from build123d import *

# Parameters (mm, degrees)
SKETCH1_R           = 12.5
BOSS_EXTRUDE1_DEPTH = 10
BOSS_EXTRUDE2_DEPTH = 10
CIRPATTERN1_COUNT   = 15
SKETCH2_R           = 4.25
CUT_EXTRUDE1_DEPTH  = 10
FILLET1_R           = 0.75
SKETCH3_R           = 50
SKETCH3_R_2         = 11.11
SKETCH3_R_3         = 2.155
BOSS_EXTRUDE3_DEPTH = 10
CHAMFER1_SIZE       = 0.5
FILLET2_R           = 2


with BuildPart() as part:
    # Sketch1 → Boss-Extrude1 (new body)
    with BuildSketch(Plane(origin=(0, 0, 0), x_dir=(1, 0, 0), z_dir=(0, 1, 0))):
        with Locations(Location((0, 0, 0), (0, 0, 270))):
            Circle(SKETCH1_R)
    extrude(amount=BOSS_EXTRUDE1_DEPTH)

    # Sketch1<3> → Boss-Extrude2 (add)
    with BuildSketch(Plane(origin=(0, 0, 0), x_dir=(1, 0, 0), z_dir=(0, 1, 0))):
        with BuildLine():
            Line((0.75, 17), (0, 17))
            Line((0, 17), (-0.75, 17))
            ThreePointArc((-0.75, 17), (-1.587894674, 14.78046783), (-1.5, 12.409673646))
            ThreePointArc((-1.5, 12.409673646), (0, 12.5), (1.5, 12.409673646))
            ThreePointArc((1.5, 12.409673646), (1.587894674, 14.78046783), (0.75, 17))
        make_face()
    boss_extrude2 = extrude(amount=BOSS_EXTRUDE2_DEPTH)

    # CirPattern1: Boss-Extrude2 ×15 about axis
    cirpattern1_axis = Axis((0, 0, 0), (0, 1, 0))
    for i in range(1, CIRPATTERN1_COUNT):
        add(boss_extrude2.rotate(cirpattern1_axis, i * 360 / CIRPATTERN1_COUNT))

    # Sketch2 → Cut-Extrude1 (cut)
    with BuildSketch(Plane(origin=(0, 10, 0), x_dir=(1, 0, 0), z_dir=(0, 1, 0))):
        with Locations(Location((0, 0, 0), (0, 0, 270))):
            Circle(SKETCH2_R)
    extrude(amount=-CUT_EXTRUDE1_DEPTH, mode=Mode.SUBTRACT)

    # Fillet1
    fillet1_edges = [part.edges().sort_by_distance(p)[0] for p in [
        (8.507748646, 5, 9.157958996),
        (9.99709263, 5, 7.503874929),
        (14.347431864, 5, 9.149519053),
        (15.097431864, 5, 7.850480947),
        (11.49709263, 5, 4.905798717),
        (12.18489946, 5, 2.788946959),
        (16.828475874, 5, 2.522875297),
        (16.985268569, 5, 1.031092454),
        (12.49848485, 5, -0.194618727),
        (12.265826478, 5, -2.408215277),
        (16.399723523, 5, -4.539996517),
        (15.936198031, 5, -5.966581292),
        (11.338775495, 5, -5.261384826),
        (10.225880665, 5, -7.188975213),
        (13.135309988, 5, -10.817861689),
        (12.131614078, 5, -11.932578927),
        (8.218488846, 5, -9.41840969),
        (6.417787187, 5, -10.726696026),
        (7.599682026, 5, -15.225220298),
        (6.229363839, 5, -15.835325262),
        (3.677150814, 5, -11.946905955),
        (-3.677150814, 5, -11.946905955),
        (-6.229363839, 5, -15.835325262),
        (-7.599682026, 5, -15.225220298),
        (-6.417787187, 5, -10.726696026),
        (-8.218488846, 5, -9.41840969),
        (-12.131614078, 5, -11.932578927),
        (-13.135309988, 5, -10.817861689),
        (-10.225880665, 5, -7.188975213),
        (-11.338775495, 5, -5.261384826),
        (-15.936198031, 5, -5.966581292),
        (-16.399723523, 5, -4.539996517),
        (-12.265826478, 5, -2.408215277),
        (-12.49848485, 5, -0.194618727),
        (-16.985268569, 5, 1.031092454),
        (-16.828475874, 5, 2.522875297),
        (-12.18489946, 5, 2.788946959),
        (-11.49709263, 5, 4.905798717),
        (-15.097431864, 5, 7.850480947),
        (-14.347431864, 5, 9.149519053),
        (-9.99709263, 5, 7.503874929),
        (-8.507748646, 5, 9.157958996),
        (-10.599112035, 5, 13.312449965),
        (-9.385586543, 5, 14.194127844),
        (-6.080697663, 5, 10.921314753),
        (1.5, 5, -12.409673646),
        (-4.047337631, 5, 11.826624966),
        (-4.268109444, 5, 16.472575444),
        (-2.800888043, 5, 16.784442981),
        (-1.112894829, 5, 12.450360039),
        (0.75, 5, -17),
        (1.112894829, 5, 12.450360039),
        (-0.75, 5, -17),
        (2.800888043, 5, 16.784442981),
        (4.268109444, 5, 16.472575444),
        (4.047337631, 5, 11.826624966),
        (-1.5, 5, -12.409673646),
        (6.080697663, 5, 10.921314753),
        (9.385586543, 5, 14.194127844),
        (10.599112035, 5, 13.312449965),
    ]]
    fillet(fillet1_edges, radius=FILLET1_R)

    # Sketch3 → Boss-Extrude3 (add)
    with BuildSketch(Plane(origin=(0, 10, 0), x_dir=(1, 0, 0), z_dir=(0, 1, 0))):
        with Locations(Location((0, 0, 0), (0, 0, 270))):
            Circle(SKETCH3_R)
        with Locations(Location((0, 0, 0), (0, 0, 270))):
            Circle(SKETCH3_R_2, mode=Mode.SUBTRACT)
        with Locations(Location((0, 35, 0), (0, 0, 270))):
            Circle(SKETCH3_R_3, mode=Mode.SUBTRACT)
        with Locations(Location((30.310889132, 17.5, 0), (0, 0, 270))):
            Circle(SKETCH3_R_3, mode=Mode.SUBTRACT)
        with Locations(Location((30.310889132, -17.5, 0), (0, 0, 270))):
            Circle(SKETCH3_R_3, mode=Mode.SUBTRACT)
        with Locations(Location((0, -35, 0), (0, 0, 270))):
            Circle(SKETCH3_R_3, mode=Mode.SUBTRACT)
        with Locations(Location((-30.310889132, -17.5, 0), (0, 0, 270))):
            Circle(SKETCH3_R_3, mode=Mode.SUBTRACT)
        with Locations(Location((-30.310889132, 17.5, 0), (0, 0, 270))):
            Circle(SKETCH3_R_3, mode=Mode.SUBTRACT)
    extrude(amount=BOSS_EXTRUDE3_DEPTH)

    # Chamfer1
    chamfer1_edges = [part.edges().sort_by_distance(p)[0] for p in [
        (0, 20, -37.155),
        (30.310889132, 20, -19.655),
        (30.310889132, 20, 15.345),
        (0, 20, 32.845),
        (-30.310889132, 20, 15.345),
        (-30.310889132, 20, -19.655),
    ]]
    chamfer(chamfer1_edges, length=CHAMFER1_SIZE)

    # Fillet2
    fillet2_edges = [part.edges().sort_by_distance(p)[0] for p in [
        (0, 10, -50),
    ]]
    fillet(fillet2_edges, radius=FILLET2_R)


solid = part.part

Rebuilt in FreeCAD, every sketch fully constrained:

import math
import FreeCAD as App
import Part
import Sketcher

V = App.Vector
Q = App.Units.Quantity


def edges_at(feature, points):
    """Names of the edges that pass closest to the given points."""
    edges = feature.Shape.Edges
    near = lambda p: min(range(len(edges)), key=lambda i: edges[i].distToShape(Part.Vertex(*p))[0])
    return sorted({f"Edge{near(p) + 1}" for p in points})

doc = App.newDocument("Part")
body = doc.addObject("PartDesign::Body", "Body")

sketch1 = body.newObject("Sketcher::SketchObject", "Sketch")
sketch1.AttachmentSupport = (doc.getObject("XZ_Plane"), [""])
sketch1.MapMode = "FlatFace"
sketch1.addGeometry(Part.Circle(V(0, 0, 0), V(0, 0, 1), 12), False)
sketch1.addConstraint(Sketcher.Constraint("Coincident", 0, 3, -1, 1))
sketch1.addConstraint(Sketcher.Constraint("Diameter", 0, Q("25 mm")))
pad1 = body.newObject("PartDesign::Pad", "Pad")
pad1.Profile = sketch1
pad1.Length = 10
pad1.Reversed = True

sketch2 = body.newObject("Sketcher::SketchObject", "Sketch001")
sketch2.AttachmentSupport = (doc.getObject("XZ_Plane"), [""])
sketch2.MapMode = "FlatFace"
sketch2.addGeometry(Part.LineSegment(V(0.8, -17, 0), V(-0.8, -17, 0)), False)
sketch2.addGeometry(Part.ArcOfCircle(Part.Circle(V(4.3, -13.8, 0), V(0, 0, 1), 6), math.radians(166), math.radians(212)), False)
sketch2.addGeometry(Part.ArcOfCircle(Part.Circle(V(0, 0, 0), V(0, 0, 1), 12.5), math.radians(-96.89), math.radians(-83.11)), False)
sketch2.addGeometry(Part.ArcOfCircle(Part.Circle(V(-4.3, -13.8, 0), V(0, 0, 1), 6), math.radians(-32), math.radians(14)), False)
sketch2.addConstraint(Sketcher.Constraint("Coincident", 0, 2, 1, 2))
sketch2.addConstraint(Sketcher.Constraint("Coincident", 1, 1, 2, 1))
sketch2.addConstraint(Sketcher.Constraint("Coincident", 2, 2, 3, 2))
sketch2.addConstraint(Sketcher.Constraint("Coincident", 3, 1, 0, 1))
sketch2.addConstraint(Sketcher.Constraint("Horizontal", 0))
sketch2.addConstraint(Sketcher.Constraint("Coincident", 2, 3, -1, 1))
sketch2.addConstraint(Sketcher.Constraint("Equal", 1, 3))
sketch2.addConstraint(Sketcher.Constraint("Symmetric", 1, 3, 3, 3, -2))
sketch2.addConstraint(Sketcher.Constraint("Radius", 1, Q("6 mm")))
sketch2.addConstraint(Sketcher.Constraint("Radius", 2, Q("12.5 mm")))
sketch2.addConstraint(Sketcher.Constraint("DistanceX", 0, 2, 0, 1, Q("1.5 mm")))
sketch2.addConstraint(Sketcher.Constraint("DistanceY", 0, 2, -1, 1, Q("17 mm")))
sketch2.addConstraint(Sketcher.Constraint("DistanceX", 1, 1, 2, 2, Q("3 mm")))
pad2 = body.newObject("PartDesign::Pad", "Pad001")
pad2.Profile = sketch2
pad2.Length = 10
pad2.Reversed = True
doc.recompute()

polarpattern = body.newObject("PartDesign::PolarPattern", "PolarPattern")
polarpattern.Originals = [pad2]
polarpattern.Axis = (doc.getObject("Y_Axis"), [""])
polarpattern.Angle = 360
polarpattern.Occurrences = 15
body.Tip = polarpattern

sketch3 = body.newObject("Sketcher::SketchObject", "Sketch002")
sketch3.AttachmentSupport = (doc.getObject("XZ_Plane"), [""])
sketch3.MapMode = "FlatFace"
sketch3.AttachmentOffset = App.Placement(V(0, 0, -10), App.Rotation())
sketch3.addGeometry(Part.Circle(V(0, 0, 0), V(0, 0, 1), 4.2), False)
sketch3.addConstraint(Sketcher.Constraint("Coincident", 0, 3, -1, 1))
sketch3.addConstraint(Sketcher.Constraint("Diameter", 0, Q("8.5 mm")))
pocket1 = body.newObject("PartDesign::Pocket", "Pocket")
pocket1.Profile = sketch3
pocket1.Length = 10
pocket1.Reversed = True
doc.recompute()

fillet = body.newObject("PartDesign::Fillet", "Fillet")
fillet.Base = (pocket1, edges_at(pocket1, [
    (8.508, 5, 9.158),
    (9.997, 5, 7.504),
    (14.347, 5, 9.15),
    (15.097, 5, 7.85),
    (11.497, 5, 4.906),
    (12.185, 5, 2.789),
    (16.828, 5, 2.523),
    (16.985, 5, 1.031),
    (12.498, 5, -0.195),
    (12.266, 5, -2.408),
    (16.4, 5, -4.54),
    (15.936, 5, -5.967),
    (11.339, 5, -5.261),
    (10.226, 5, -7.189),
    (13.135, 5, -10.818),
    (12.132, 5, -11.933),
    (8.218, 5, -9.418),
    (6.418, 5, -10.727),
    (7.6, 5, -15.225),
    (6.229, 5, -15.835),
    (3.677, 5, -11.947),
    (-3.677, 5, -11.947),
    (-6.229, 5, -15.835),
    (-7.6, 5, -15.225),
    (-6.418, 5, -10.727),
    (-8.218, 5, -9.418),
    (-12.132, 5, -11.933),
    (-13.135, 5, -10.818),
    (-10.226, 5, -7.189),
    (-11.339, 5, -5.261),
    (-15.936, 5, -5.967),
    (-16.4, 5, -4.54),
    (-12.266, 5, -2.408),
    (-12.498, 5, -0.195),
    (-16.985, 5, 1.031),
    (-16.828, 5, 2.523),
    (-12.185, 5, 2.789),
    (-11.497, 5, 4.906),
    (-15.097, 5, 7.85),
    (-14.347, 5, 9.15),
    (-9.997, 5, 7.504),
    (-8.508, 5, 9.158),
    (-10.599, 5, 13.312),
    (-9.386, 5, 14.194),
    (-6.081, 5, 10.921),
    (1.5, 5, -12.41),
    (-4.047, 5, 11.827),
    (-4.268, 5, 16.473),
    (-2.801, 5, 16.784),
    (-1.113, 5, 12.45),
    (0.75, 5, -17),
    (1.113, 5, 12.45),
    (-0.75, 5, -17),
    (2.801, 5, 16.784),
    (4.268, 5, 16.473),
    (4.047, 5, 11.827),
    (-1.5, 5, -12.41),
    (6.081, 5, 10.921),
    (9.386, 5, 14.194),
    (10.599, 5, 13.312),
]))
fillet.Radius = 0.75

sketch4 = body.newObject("Sketcher::SketchObject", "Sketch003")
sketch4.AttachmentSupport = (doc.getObject("XZ_Plane"), [""])
sketch4.MapMode = "FlatFace"
sketch4.AttachmentOffset = App.Placement(V(0, 0, -10), App.Rotation())
sketch4.addGeometry(Part.Circle(V(0, 0, 0), V(0, 0, 1), 50), False)
sketch4.addGeometry(Part.Circle(V(-30.3, -17.5, 0), V(0, 0, 1), 2.2), False)
sketch4.addGeometry(Part.Circle(V(0, -35, 0), V(0, 0, 1), 2.2), False)
sketch4.addGeometry(Part.Circle(V(-30.3, 17.5, 0), V(0, 0, 1), 2.2), False)
sketch4.addGeometry(Part.Circle(V(30.3, -17.5, 0), V(0, 0, 1), 2.2), False)
sketch4.addGeometry(Part.Circle(V(0, 0, 0), V(0, 0, 1), 11.1), False)
sketch4.addGeometry(Part.Circle(V(0, 35, 0), V(0, 0, 1), 2.2), False)
sketch4.addGeometry(Part.Circle(V(30.3, 17.5, 0), V(0, 0, 1), 2.2), False)
sketch4.addConstraint(Sketcher.Constraint("Coincident", 0, 3, -1, 1))
sketch4.addConstraint(Sketcher.Constraint("Coincident", 5, 3, -1, 1))
sketch4.addConstraint(Sketcher.Constraint("Equal", 1, 2))
sketch4.addConstraint(Sketcher.Constraint("Equal", 2, 3))
sketch4.addConstraint(Sketcher.Constraint("Equal", 3, 4))
sketch4.addConstraint(Sketcher.Constraint("Equal", 4, 6))
sketch4.addConstraint(Sketcher.Constraint("Equal", 6, 7))
sketch4.addConstraint(Sketcher.Constraint("Symmetric", 3, 3, 4, 3, -1, 1))
sketch4.addConstraint(Sketcher.Constraint("Symmetric", 2, 3, 6, 3, -1, 1))
sketch4.addConstraint(Sketcher.Constraint("Symmetric", 1, 3, 7, 3, -1, 1))
sketch4.addConstraint(Sketcher.Constraint("Symmetric", 1, 3, 4, 3, -2))
sketch4.addConstraint(Sketcher.Constraint("PointOnObject", 2, 3, -2))
sketch4.addConstraint(Sketcher.Constraint("Diameter", 0, Q("100 mm")))
sketch4.addConstraint(Sketcher.Constraint("Diameter", 1, Q("4.31 mm")))
sketch4.addConstraint(Sketcher.Constraint("Diameter", 5, Q("22.22 mm")))
sketch4.addConstraint(Sketcher.Constraint("DistanceY", 2, 3, -1, 1, Q("35 mm")))
sketch4.addConstraint(Sketcher.Constraint("DistanceY", 1, 3, 3, 3, Q("35 mm")))
sketch4.addConstraint(Sketcher.Constraint("DistanceX", 1, 3, -1, 1, Q("30.310889 mm")))
pad3 = body.newObject("PartDesign::Pad", "Pad002")
pad3.Profile = sketch4
pad3.Length = 10
pad3.Reversed = True
doc.recompute()

chamfer = body.newObject("PartDesign::Chamfer", "Chamfer")
chamfer.Base = (pad3, edges_at(pad3, [
    (0, 20, -37.155),
    (30.311, 20, -19.655),
    (30.311, 20, 15.345),
    (0, 20, 32.845),
    (-30.311, 20, 15.345),
    (-30.311, 20, -19.655),
]))
chamfer.Size = 0.5
doc.recompute()

fillet2 = body.newObject("PartDesign::Fillet", "Fillet001")
fillet2.Base = (chamfer, edges_at(chamfer, [(0, 10, -50)]))
fillet2.Radius = 2

doc.recompute()
